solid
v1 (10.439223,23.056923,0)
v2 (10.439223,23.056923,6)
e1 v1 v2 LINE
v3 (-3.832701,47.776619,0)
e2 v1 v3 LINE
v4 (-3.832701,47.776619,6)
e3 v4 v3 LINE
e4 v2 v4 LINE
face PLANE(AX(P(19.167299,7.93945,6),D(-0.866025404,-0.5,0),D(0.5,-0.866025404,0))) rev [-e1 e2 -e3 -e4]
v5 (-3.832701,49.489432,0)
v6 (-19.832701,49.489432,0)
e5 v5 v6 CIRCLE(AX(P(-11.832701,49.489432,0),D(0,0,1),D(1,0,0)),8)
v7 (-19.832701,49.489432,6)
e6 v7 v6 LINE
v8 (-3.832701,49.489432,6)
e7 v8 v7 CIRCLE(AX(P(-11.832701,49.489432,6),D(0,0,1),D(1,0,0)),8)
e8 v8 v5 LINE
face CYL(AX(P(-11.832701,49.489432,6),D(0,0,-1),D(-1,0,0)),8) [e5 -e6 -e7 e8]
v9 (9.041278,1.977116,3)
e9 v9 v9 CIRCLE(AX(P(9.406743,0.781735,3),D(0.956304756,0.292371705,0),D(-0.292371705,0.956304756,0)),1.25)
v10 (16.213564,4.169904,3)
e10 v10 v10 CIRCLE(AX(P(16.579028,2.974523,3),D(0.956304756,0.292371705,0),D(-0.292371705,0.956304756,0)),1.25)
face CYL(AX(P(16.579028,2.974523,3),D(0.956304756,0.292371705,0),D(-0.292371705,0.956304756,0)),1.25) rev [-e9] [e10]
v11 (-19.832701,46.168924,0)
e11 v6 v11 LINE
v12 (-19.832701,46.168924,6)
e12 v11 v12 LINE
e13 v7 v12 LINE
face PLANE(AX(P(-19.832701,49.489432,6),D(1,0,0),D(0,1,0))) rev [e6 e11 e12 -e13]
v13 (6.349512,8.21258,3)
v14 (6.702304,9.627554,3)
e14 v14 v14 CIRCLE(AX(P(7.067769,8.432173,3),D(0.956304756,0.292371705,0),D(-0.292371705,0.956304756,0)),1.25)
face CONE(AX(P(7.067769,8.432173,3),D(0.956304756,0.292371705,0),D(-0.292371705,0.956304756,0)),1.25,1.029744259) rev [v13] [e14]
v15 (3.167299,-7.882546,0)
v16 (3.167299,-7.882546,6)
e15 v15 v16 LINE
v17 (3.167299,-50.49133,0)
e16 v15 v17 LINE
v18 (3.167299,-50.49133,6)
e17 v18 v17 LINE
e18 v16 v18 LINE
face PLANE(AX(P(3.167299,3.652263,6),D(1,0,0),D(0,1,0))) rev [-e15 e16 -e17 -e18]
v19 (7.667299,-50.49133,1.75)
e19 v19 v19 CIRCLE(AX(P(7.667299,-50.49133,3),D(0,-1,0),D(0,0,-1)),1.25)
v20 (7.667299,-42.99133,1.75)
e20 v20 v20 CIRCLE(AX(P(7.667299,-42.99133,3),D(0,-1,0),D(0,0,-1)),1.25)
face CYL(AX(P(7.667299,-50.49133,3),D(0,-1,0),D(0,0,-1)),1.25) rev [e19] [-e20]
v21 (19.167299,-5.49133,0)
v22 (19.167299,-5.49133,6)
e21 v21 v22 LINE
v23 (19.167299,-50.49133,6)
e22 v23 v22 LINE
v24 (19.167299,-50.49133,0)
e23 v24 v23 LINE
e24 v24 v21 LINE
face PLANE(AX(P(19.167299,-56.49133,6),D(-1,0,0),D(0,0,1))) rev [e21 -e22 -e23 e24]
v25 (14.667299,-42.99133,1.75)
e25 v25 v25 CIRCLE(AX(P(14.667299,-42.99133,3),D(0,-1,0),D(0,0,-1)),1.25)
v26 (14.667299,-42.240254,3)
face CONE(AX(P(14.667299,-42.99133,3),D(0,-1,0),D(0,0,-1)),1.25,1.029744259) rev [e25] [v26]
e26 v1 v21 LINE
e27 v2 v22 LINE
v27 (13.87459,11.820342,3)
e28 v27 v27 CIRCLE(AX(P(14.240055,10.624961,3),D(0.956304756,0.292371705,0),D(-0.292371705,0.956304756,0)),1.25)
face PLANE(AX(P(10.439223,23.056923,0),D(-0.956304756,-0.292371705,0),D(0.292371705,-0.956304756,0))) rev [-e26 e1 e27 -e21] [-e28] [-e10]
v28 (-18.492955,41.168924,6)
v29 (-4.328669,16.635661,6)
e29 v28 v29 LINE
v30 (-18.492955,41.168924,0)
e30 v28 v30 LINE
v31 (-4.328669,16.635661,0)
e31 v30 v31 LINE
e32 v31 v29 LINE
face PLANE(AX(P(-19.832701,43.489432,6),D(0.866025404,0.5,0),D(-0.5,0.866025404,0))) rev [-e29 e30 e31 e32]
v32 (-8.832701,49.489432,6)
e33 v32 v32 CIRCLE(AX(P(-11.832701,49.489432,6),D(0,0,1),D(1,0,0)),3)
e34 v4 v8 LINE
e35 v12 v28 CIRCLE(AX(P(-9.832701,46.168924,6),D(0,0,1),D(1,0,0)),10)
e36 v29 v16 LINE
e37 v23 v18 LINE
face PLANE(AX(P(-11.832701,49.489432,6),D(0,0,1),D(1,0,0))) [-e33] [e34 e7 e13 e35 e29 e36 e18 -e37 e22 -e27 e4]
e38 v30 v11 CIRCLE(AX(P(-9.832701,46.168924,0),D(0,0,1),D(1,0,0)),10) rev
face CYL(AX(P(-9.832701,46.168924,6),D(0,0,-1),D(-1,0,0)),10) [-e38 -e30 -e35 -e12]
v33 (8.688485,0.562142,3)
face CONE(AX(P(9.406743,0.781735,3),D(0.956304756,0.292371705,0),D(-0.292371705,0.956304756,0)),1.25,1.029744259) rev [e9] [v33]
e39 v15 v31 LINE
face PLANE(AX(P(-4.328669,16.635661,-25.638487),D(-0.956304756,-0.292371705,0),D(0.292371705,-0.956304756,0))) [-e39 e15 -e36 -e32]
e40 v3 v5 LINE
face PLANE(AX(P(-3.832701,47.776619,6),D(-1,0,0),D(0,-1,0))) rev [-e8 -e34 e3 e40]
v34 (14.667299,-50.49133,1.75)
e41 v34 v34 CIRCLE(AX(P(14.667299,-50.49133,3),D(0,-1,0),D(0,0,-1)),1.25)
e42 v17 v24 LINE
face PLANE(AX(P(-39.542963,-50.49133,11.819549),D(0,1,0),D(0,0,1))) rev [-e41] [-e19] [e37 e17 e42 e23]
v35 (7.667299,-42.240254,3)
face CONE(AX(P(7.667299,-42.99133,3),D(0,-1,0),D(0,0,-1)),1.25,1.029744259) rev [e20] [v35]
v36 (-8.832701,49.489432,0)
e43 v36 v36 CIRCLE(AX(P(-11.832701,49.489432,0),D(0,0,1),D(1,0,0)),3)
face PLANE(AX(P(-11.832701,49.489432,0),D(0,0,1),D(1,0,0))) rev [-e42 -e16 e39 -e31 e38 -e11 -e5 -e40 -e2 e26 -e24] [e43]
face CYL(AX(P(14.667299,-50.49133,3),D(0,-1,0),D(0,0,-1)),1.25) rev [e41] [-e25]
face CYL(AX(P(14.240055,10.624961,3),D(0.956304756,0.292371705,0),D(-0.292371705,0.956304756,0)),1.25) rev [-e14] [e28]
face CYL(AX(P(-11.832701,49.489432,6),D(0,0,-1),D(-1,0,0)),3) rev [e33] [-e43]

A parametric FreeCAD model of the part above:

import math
import FreeCAD as App
import Part
import Sketcher
Q = App.Units.Quantity


def edges_at(feature, points):
    """Names of the edges that pass closest to the given points."""
    edges = feature.Shape.Edges
    near = lambda p: min(range(len(edges)), key=lambda i: edges[i].distToShape(Part.Vertex(*p))[0])
    return sorted({f"Edge{near(p) + 1}" for p in points})

doc = App.newDocument("Part")
body = doc.addObject("PartDesign::Body", "Body")

sketch1 = body.newObject("Sketcher::SketchObject", "Sketch")
sketch1.AttachmentSupport = (doc.getObject("XY_Plane"), [""])
sketch1.MapMode = "FlatFace"
sketch1.addGeometry([
    Part.LineSegment(App.Vector(19.2, 7.9, 0), App.Vector(-3.8, 47.8, 0)),
    Part.LineSegment(App.Vector(-3.8, 47.8, 0), App.Vector(-3.8, 49.5, 0)),
    Part.ArcOfCircle(Part.Circle(App.Vector(-11.8, 49.5, 0), App.Vector(0, 0, 1), 8), math.radians(0), math.radians(180)),
    Part.LineSegment(App.Vector(-19.8, 49.5, 0), App.Vector(-19.8, 43.5, 0)),
    Part.LineSegment(App.Vector(-19.8, 43.5, 0), App.Vector(3.2, 3.7, 0)),
    Part.LineSegment(App.Vector(3.2, 3.7, 0), App.Vector(3.2, -56.5, 0)),
    Part.LineSegment(App.Vector(3.2, -56.5, 0), App.Vector(19.2, -56.5, 0)),
    Part.LineSegment(App.Vector(19.2, -56.5, 0), App.Vector(19.2, 7.9, 0)),
    Part.Circle(App.Vector(-11.8, 49.5, 0), App.Vector(0, 0, 1), 3),
], False)
sketch1.addConstraint([
    Sketcher.Constraint("Coincident", 0, 2, 1, 1),
    Sketcher.Constraint("Tangent", 1, 2, 2, 1),
    Sketcher.Constraint("Tangent", 2, 2, 3, 1),
    Sketcher.Constraint("Coincident", 3, 2, 4, 1),
    Sketcher.Constraint("Coincident", 4, 2, 5, 1),
    Sketcher.Constraint("Coincident", 5, 2, 6, 1),
    Sketcher.Constraint("Coincident", 6, 2, 7, 1),
    Sketcher.Constraint("Coincident", 7, 2, 0, 1),
    Sketcher.Constraint("Vertical", 1),
    Sketcher.Constraint("Vertical", 3),
    Sketcher.Constraint("Vertical", 5),
    Sketcher.Constraint("Horizontal", 6),
    Sketcher.Constraint("Vertical", 7),
    Sketcher.Constraint("Coincident", 8, 3, 2, 3),
    Sketcher.Constraint("Parallel", 0, 4),
    Sketcher.Constraint("Equal", 0, 4),
    Sketcher.Constraint("Diameter", 8, Q("6 mm")),
    Sketcher.Constraint("Radius", 2, Q("8 mm")),
    Sketcher.Constraint("DistanceY", 3, 2, 3, 1, Q("6 mm")),
    Sketcher.Constraint("Angle", 0, Q("120 deg")),
    Sketcher.Constraint("Distance", 0, Q("46 mm")),
    Sketcher.Constraint("DistanceY", 7, 1, 7, 2, Q("64.430781 mm")),
    Sketcher.Constraint("DistanceX", 2, 3, -1, 1, Q("11.832701 mm")),
    Sketcher.Constraint("DistanceY", 1, 1, 1, 2, Q("1.712813 mm")),
    Sketcher.Constraint("DistanceY", -1, 1, 2, 3, Q("49.489432 mm")),
])
pad1 = body.newObject("PartDesign::Pad", "Pad")
pad1.Profile = sketch1
pad1.Length = 6

sketch2 = body.newObject("Sketcher::SketchObject", "Sketch001")
sketch2.AttachmentSupport = (doc.getObject("XZ_Plane"), [""])
sketch2.MapMode = "FlatFace"
sketch2.AttachmentOffset = App.Placement(App.Vector(0, 0, 56.49133), App.Rotation())
sketch2.addGeometry([
    Part.LineSegment(App.Vector(3.2, 6, 0), App.Vector(3.2, -20, 0)),
    Part.LineSegment(App.Vector(3.2, -20, 0), App.Vector(19.2, -20, 0)),
    Part.LineSegment(App.Vector(19.2, -20, 0), App.Vector(19.2, 6, 0)),
    Part.LineSegment(App.Vector(19.2, 6, 0), App.Vector(3.2, 6, 0)),
    Part.Circle(App.Vector(15.2, -15, 0), App.Vector(0, 0, 1), 1.6),
    Part.Circle(App.Vector(7.2, -8, 0), App.Vector(0, 0, 1), 1.6),
], False)
sketch2.addConstraint([
    Sketcher.Constraint("Coincident", 0, 2, 1, 1),
    Sketcher.Constraint("Coincident", 1, 2, 2, 1),
    Sketcher.Constraint("Coincident", 2, 2, 3, 1),
    Sketcher.Constraint("Coincident", 3, 2, 0, 1),
    Sketcher.Constraint("Vertical", 0),
    Sketcher.Constraint("Horizontal", 1),
    Sketcher.Constraint("Vertical", 2),
    Sketcher.Constraint("Horizontal", 3),
    Sketcher.Constraint("Equal", 4, 5),
    Sketcher.Constraint("Diameter", 4, Q("3.2 mm")),
    Sketcher.Constraint("DistanceX", 1, 1, 1, 2, Q("16 mm")),
    Sketcher.Constraint("DistanceY", 0, 2, 0, 1, Q("26 mm")),
    Sketcher.Constraint("DistanceY", 4, 3, -1, 1, Q("15 mm")),
    Sketcher.Constraint("DistanceY", 5, 3, -1, 1, Q("8 mm")),
    Sketcher.Constraint("DistanceY", 0, 2, -1, 1, Q("20 mm")),
    Sketcher.Constraint("DistanceX", 5, 3, 4, 3, Q("8 mm")),
    Sketcher.Constraint("DistanceX", 0, 2, 5, 3, Q("4 mm")),
    Sketcher.Constraint("DistanceX", -1, 1, 4, 3, Q("15.167299 mm")),
])
pad2 = body.newObject("PartDesign::Pad", "Pad001")
pad2.Profile = sketch2
pad2.Length = 6
pad2.Reversed = True
doc.recompute()

fillet = body.newObject("PartDesign::Fillet", "Fillet")
fillet.Base = (pad2, edges_at(pad2, [(-19.833, 43.489, 3)]))
fillet.Radius = 10
doc.recompute()

fillet2 = body.newObject("PartDesign::Fillet", "Fillet001")
fillet2.Base = (fillet, edges_at(fillet, [(3.167, -53.491, -20), (19.167, -53.491, -20)]))
fillet2.Radius = 2

sketch3 = body.newObject("Sketcher::SketchObject", "Sketch002")
sketch3.AttachmentSupport = (doc.getObject("YZ_Plane"), [""])
sketch3.MapMode = "FlatFace"
sketch3.AttachmentOffset = App.Placement(App.Vector(0, 0, 19.167299), App.Rotation())
sketch3.addGeometry([
    Part.LineSegment(App.Vector(-50, 12, 0), App.Vector(-66, 12, 0)),
    Part.LineSegment(App.Vector(-66, 12, 0), App.Vector(-66, -28, 0)),
    Part.LineSegment(App.Vector(-66, -28, 0), App.Vector(-50, -28, 0)),
    Part.LineSegment(App.Vector(-50, -28, 0), App.Vector(-50, 12, 0)),
], False)
sketch3.addConstraint([
    Sketcher.Constraint("Coincident", 0, 2, 1, 1),
    Sketcher.Constraint("Coincident", 1, 2, 2, 1),
    Sketcher.Constraint("Coincident", 2, 2, 3, 1),
    Sketcher.Constraint("Coincident", 3, 2, 0, 1),
    Sketcher.Constraint("Horizontal", 0),
    Sketcher.Constraint("Vertical", 1),
    Sketcher.Constraint("Horizontal", 2),
    Sketcher.Constraint("Vertical", 3),
    Sketcher.Constraint("DistanceX", 0, 2, 0, 1, Q("15.568928 mm")),
    Sketcher.Constraint("DistanceY", 1, 2, 1, 1, Q("39.771535 mm")),
    Sketcher.Constraint("DistanceX", 0, 2, -1, 1, Q("66.060258 mm")),
    Sketcher.Constraint("DistanceY", -1, 1, 0, 2, Q("11.819549 mm")),
])
pocket1 = body.newObject("PartDesign::Pocket", "Pocket")
pocket1.Profile = sketch3
pocket1.Length = 16

sketch4 = body.newObject("Sketcher::SketchObject", "Sketch003")
sketch4.AttachmentSupport = (doc.getObject("XZ_Plane"), [""])
sketch4.MapMode = "FlatFace"
sketch4.AttachmentOffset = App.Placement(App.Vector(0, 0, 50.49133), App.Rotation())
sketch4.addGeometry([
    Part.Circle(App.Vector(7.7, 3, 0), App.Vector(0, 0, 1), 1.2),
    Part.Circle(App.Vector(14.7, 3, 0), App.Vector(0, 0, 1), 1.2),
], False)
sketch4.addConstraint([
    Sketcher.Constraint("Equal", 0, 1),
    Sketcher.Constraint("Horizontal", 0, 3, 1, 3),
    Sketcher.Constraint("Diameter", 0, Q("2.5 mm")),
    Sketcher.Constraint("DistanceY", -1, 1, 0, 3, Q("3 mm")),
    Sketcher.Constraint("DistanceX", 0, 3, 1, 3, Q("7 mm")),
    Sketcher.Constraint("DistanceX", -1, 1, 0, 3, Q("7.667299 mm")),
])
doc.recompute()
hole = body.newObject("PartDesign::Hole", "Hole")
hole.Profile = sketch4
hole.ThreadType = "None"
hole.Diameter = 2.5
hole.DepthType = "Dimension"
hole.Depth = 7.5
hole.DrillPoint = "Angled"
hole.DrillPointAngle = 118

sketch5 = body.newObject("Sketcher::SketchObject", "Sketch004")
sketch5.AttachmentSupport = (doc.getObject("XY_Plane"), [""])
sketch5.MapMode = "FlatFace"
sketch5.AttachmentOffset = App.Placement(App.Vector(0, 0, 6), App.Rotation())
sketch5.addGeometry([
    Part.LineSegment(App.Vector(30, 19, 0), App.Vector(10, 23, 0)),
    Part.LineSegment(App.Vector(10, 23, 0), App.Vector(19, -5, 0)),
    Part.LineSegment(App.Vector(19, -5, 0), App.Vector(30, 19, 0)),
], False)
sketch5.addConstraint([
    Sketcher.Constraint("Coincident", 0, 2, 1, 1),
    Sketcher.Constraint("Coincident", 1, 2, 2, 1),
    Sketcher.Constraint("Coincident", 2, 2, 0, 1),
    Sketcher.Constraint("Angle", 1, Q("-73 deg")),
    Sketcher.Constraint("DistanceX", -1, 1, 1, 2, Q("19.167299 mm")),
    Sketcher.Constraint("Distance", 0, Q("19.83812 mm")),
    Sketcher.Constraint("Distance", 2, Q("27.060472 mm")),
    Sketcher.Constraint("DistanceY", 1, 2, -1, 1, Q("5.49133 mm")),
    Sketcher.Constraint("Distance", 1, Q("29.852673 mm")),
])
pocket2 = body.newObject("PartDesign::Pocket", "Pocket001")
pocket2.Profile = sketch5
pocket2.Type = "ThroughAll"

sketch6 = body.newObject("Sketcher::SketchObject", "Sketch005")
sketch6.AttachmentSupport = (doc.getObject("XY_Plane"), [""])
sketch6.MapMode = "FlatFace"
sketch6.AttachmentOffset = App.Placement(App.Vector(0, 0, 6), App.Rotation())
sketch6.addGeometry([
    Part.LineSegment(App.Vector(-4, 17, 0), App.Vector(3, -8, 0)),
    Part.LineSegment(App.Vector(3, -8, 0), App.Vector(3, 4, 0)),
    Part.LineSegment(App.Vector(3, 4, 0), App.Vector(-4, 17, 0)),
], False)
sketch6.addConstraint([
    Sketcher.Constraint("Coincident", 0, 2, 1, 1),
    Sketcher.Constraint("Coincident", 1, 2, 2, 1),
    Sketcher.Constraint("Coincident", 2, 2, 0, 1),
    Sketcher.Constraint("Vertical", 1),
    Sketcher.Constraint("Angle", 0, Q("-73 deg")),
    Sketcher.Constraint("Angle", 2, Q("120 deg")),
    Sketcher.Constraint("DistanceY", 1, 1, 1, 2, Q("11.53481 mm")),
    Sketcher.Constraint("DistanceX", -1, 1, 0, 2, Q("3.167299 mm")),
    Sketcher.Constraint("DistanceY", -1, 1, 2, 2, Q("16.635661 mm")),
])
pad3 = body.newObject("PartDesign::Pad", "Pad002")
pad3.Profile = sketch6
pad3.Length = 6
pad3.Reversed = True

sketch7 = body.newObject("Sketcher::SketchObject", "Sketch006")
sketch7.Placement = App.Placement(App.Vector(15.993499, 4.889703, 0), App.Rotation(App.Vector(-0.292371705, 0.956304756, 0), App.Vector(0, 0, 1), App.Vector(0.956304756, 0.292371705, 0), "ZXY"))
sketch7.addGeometry(Part.Circle(App.Vector(6, 3, 0), App.Vector(0, 0, 1), 1.2), False)
sketch7.addConstraint([
    Sketcher.Constraint("Diameter", 0, Q("2.5 mm")),
    Sketcher.Constraint("DistanceY", -1, 1, 0, 3, Q("3 mm")),
    Sketcher.Constraint("DistanceX", -1, 1, 0, 3, Q("5.997312 mm")),
])
doc.recompute()
hole2 = body.newObject("PartDesign::Hole", "Hole001")
hole2.Profile = sketch7
hole2.ThreadType = "None"
hole2.Diameter = 2.5
hole2.DepthType = "Dimension"
hole2.Depth = 7.5
hole2.DrillPoint = "Angled"
hole2.DrillPointAngle = 118

sketch8 = body.newObject("Sketcher::SketchObject", "Sketch007")
sketch8.Placement = App.Placement(App.Vector(15.993498, 4.889707, 0), App.Rotation(App.Vector(-0.292371907, 0.956304694, 0), App.Vector(0, 0, 1), App.Vector(0.956304694, 0.292371907, 0), "ZXY"))
sketch8.addGeometry(Part.Circle(App.Vector(-2, 3, 0), App.Vector(0, 0, 1), 1.2), False)
sketch8.addConstraint([
    Sketcher.Constraint("Diameter", 0, Q("2.5 mm")),
    Sketcher.Constraint("DistanceY", -1, 1, 0, 3, Q("3 mm")),
    Sketcher.Constraint("DistanceX", 0, 3, -1, 1, Q("2.002692 mm")),
])
doc.recompute()
hole3 = body.newObject("PartDesign::Hole", "Hole002")
hole3.Profile = sketch8
hole3.ThreadType = "None"
hole3.Diameter = 2.5
hole3.DepthType = "Dimension"
hole3.Depth = 7.5
hole3.DrillPoint = "Angled"
hole3.DrillPointAngle = 118

doc.recompute()
